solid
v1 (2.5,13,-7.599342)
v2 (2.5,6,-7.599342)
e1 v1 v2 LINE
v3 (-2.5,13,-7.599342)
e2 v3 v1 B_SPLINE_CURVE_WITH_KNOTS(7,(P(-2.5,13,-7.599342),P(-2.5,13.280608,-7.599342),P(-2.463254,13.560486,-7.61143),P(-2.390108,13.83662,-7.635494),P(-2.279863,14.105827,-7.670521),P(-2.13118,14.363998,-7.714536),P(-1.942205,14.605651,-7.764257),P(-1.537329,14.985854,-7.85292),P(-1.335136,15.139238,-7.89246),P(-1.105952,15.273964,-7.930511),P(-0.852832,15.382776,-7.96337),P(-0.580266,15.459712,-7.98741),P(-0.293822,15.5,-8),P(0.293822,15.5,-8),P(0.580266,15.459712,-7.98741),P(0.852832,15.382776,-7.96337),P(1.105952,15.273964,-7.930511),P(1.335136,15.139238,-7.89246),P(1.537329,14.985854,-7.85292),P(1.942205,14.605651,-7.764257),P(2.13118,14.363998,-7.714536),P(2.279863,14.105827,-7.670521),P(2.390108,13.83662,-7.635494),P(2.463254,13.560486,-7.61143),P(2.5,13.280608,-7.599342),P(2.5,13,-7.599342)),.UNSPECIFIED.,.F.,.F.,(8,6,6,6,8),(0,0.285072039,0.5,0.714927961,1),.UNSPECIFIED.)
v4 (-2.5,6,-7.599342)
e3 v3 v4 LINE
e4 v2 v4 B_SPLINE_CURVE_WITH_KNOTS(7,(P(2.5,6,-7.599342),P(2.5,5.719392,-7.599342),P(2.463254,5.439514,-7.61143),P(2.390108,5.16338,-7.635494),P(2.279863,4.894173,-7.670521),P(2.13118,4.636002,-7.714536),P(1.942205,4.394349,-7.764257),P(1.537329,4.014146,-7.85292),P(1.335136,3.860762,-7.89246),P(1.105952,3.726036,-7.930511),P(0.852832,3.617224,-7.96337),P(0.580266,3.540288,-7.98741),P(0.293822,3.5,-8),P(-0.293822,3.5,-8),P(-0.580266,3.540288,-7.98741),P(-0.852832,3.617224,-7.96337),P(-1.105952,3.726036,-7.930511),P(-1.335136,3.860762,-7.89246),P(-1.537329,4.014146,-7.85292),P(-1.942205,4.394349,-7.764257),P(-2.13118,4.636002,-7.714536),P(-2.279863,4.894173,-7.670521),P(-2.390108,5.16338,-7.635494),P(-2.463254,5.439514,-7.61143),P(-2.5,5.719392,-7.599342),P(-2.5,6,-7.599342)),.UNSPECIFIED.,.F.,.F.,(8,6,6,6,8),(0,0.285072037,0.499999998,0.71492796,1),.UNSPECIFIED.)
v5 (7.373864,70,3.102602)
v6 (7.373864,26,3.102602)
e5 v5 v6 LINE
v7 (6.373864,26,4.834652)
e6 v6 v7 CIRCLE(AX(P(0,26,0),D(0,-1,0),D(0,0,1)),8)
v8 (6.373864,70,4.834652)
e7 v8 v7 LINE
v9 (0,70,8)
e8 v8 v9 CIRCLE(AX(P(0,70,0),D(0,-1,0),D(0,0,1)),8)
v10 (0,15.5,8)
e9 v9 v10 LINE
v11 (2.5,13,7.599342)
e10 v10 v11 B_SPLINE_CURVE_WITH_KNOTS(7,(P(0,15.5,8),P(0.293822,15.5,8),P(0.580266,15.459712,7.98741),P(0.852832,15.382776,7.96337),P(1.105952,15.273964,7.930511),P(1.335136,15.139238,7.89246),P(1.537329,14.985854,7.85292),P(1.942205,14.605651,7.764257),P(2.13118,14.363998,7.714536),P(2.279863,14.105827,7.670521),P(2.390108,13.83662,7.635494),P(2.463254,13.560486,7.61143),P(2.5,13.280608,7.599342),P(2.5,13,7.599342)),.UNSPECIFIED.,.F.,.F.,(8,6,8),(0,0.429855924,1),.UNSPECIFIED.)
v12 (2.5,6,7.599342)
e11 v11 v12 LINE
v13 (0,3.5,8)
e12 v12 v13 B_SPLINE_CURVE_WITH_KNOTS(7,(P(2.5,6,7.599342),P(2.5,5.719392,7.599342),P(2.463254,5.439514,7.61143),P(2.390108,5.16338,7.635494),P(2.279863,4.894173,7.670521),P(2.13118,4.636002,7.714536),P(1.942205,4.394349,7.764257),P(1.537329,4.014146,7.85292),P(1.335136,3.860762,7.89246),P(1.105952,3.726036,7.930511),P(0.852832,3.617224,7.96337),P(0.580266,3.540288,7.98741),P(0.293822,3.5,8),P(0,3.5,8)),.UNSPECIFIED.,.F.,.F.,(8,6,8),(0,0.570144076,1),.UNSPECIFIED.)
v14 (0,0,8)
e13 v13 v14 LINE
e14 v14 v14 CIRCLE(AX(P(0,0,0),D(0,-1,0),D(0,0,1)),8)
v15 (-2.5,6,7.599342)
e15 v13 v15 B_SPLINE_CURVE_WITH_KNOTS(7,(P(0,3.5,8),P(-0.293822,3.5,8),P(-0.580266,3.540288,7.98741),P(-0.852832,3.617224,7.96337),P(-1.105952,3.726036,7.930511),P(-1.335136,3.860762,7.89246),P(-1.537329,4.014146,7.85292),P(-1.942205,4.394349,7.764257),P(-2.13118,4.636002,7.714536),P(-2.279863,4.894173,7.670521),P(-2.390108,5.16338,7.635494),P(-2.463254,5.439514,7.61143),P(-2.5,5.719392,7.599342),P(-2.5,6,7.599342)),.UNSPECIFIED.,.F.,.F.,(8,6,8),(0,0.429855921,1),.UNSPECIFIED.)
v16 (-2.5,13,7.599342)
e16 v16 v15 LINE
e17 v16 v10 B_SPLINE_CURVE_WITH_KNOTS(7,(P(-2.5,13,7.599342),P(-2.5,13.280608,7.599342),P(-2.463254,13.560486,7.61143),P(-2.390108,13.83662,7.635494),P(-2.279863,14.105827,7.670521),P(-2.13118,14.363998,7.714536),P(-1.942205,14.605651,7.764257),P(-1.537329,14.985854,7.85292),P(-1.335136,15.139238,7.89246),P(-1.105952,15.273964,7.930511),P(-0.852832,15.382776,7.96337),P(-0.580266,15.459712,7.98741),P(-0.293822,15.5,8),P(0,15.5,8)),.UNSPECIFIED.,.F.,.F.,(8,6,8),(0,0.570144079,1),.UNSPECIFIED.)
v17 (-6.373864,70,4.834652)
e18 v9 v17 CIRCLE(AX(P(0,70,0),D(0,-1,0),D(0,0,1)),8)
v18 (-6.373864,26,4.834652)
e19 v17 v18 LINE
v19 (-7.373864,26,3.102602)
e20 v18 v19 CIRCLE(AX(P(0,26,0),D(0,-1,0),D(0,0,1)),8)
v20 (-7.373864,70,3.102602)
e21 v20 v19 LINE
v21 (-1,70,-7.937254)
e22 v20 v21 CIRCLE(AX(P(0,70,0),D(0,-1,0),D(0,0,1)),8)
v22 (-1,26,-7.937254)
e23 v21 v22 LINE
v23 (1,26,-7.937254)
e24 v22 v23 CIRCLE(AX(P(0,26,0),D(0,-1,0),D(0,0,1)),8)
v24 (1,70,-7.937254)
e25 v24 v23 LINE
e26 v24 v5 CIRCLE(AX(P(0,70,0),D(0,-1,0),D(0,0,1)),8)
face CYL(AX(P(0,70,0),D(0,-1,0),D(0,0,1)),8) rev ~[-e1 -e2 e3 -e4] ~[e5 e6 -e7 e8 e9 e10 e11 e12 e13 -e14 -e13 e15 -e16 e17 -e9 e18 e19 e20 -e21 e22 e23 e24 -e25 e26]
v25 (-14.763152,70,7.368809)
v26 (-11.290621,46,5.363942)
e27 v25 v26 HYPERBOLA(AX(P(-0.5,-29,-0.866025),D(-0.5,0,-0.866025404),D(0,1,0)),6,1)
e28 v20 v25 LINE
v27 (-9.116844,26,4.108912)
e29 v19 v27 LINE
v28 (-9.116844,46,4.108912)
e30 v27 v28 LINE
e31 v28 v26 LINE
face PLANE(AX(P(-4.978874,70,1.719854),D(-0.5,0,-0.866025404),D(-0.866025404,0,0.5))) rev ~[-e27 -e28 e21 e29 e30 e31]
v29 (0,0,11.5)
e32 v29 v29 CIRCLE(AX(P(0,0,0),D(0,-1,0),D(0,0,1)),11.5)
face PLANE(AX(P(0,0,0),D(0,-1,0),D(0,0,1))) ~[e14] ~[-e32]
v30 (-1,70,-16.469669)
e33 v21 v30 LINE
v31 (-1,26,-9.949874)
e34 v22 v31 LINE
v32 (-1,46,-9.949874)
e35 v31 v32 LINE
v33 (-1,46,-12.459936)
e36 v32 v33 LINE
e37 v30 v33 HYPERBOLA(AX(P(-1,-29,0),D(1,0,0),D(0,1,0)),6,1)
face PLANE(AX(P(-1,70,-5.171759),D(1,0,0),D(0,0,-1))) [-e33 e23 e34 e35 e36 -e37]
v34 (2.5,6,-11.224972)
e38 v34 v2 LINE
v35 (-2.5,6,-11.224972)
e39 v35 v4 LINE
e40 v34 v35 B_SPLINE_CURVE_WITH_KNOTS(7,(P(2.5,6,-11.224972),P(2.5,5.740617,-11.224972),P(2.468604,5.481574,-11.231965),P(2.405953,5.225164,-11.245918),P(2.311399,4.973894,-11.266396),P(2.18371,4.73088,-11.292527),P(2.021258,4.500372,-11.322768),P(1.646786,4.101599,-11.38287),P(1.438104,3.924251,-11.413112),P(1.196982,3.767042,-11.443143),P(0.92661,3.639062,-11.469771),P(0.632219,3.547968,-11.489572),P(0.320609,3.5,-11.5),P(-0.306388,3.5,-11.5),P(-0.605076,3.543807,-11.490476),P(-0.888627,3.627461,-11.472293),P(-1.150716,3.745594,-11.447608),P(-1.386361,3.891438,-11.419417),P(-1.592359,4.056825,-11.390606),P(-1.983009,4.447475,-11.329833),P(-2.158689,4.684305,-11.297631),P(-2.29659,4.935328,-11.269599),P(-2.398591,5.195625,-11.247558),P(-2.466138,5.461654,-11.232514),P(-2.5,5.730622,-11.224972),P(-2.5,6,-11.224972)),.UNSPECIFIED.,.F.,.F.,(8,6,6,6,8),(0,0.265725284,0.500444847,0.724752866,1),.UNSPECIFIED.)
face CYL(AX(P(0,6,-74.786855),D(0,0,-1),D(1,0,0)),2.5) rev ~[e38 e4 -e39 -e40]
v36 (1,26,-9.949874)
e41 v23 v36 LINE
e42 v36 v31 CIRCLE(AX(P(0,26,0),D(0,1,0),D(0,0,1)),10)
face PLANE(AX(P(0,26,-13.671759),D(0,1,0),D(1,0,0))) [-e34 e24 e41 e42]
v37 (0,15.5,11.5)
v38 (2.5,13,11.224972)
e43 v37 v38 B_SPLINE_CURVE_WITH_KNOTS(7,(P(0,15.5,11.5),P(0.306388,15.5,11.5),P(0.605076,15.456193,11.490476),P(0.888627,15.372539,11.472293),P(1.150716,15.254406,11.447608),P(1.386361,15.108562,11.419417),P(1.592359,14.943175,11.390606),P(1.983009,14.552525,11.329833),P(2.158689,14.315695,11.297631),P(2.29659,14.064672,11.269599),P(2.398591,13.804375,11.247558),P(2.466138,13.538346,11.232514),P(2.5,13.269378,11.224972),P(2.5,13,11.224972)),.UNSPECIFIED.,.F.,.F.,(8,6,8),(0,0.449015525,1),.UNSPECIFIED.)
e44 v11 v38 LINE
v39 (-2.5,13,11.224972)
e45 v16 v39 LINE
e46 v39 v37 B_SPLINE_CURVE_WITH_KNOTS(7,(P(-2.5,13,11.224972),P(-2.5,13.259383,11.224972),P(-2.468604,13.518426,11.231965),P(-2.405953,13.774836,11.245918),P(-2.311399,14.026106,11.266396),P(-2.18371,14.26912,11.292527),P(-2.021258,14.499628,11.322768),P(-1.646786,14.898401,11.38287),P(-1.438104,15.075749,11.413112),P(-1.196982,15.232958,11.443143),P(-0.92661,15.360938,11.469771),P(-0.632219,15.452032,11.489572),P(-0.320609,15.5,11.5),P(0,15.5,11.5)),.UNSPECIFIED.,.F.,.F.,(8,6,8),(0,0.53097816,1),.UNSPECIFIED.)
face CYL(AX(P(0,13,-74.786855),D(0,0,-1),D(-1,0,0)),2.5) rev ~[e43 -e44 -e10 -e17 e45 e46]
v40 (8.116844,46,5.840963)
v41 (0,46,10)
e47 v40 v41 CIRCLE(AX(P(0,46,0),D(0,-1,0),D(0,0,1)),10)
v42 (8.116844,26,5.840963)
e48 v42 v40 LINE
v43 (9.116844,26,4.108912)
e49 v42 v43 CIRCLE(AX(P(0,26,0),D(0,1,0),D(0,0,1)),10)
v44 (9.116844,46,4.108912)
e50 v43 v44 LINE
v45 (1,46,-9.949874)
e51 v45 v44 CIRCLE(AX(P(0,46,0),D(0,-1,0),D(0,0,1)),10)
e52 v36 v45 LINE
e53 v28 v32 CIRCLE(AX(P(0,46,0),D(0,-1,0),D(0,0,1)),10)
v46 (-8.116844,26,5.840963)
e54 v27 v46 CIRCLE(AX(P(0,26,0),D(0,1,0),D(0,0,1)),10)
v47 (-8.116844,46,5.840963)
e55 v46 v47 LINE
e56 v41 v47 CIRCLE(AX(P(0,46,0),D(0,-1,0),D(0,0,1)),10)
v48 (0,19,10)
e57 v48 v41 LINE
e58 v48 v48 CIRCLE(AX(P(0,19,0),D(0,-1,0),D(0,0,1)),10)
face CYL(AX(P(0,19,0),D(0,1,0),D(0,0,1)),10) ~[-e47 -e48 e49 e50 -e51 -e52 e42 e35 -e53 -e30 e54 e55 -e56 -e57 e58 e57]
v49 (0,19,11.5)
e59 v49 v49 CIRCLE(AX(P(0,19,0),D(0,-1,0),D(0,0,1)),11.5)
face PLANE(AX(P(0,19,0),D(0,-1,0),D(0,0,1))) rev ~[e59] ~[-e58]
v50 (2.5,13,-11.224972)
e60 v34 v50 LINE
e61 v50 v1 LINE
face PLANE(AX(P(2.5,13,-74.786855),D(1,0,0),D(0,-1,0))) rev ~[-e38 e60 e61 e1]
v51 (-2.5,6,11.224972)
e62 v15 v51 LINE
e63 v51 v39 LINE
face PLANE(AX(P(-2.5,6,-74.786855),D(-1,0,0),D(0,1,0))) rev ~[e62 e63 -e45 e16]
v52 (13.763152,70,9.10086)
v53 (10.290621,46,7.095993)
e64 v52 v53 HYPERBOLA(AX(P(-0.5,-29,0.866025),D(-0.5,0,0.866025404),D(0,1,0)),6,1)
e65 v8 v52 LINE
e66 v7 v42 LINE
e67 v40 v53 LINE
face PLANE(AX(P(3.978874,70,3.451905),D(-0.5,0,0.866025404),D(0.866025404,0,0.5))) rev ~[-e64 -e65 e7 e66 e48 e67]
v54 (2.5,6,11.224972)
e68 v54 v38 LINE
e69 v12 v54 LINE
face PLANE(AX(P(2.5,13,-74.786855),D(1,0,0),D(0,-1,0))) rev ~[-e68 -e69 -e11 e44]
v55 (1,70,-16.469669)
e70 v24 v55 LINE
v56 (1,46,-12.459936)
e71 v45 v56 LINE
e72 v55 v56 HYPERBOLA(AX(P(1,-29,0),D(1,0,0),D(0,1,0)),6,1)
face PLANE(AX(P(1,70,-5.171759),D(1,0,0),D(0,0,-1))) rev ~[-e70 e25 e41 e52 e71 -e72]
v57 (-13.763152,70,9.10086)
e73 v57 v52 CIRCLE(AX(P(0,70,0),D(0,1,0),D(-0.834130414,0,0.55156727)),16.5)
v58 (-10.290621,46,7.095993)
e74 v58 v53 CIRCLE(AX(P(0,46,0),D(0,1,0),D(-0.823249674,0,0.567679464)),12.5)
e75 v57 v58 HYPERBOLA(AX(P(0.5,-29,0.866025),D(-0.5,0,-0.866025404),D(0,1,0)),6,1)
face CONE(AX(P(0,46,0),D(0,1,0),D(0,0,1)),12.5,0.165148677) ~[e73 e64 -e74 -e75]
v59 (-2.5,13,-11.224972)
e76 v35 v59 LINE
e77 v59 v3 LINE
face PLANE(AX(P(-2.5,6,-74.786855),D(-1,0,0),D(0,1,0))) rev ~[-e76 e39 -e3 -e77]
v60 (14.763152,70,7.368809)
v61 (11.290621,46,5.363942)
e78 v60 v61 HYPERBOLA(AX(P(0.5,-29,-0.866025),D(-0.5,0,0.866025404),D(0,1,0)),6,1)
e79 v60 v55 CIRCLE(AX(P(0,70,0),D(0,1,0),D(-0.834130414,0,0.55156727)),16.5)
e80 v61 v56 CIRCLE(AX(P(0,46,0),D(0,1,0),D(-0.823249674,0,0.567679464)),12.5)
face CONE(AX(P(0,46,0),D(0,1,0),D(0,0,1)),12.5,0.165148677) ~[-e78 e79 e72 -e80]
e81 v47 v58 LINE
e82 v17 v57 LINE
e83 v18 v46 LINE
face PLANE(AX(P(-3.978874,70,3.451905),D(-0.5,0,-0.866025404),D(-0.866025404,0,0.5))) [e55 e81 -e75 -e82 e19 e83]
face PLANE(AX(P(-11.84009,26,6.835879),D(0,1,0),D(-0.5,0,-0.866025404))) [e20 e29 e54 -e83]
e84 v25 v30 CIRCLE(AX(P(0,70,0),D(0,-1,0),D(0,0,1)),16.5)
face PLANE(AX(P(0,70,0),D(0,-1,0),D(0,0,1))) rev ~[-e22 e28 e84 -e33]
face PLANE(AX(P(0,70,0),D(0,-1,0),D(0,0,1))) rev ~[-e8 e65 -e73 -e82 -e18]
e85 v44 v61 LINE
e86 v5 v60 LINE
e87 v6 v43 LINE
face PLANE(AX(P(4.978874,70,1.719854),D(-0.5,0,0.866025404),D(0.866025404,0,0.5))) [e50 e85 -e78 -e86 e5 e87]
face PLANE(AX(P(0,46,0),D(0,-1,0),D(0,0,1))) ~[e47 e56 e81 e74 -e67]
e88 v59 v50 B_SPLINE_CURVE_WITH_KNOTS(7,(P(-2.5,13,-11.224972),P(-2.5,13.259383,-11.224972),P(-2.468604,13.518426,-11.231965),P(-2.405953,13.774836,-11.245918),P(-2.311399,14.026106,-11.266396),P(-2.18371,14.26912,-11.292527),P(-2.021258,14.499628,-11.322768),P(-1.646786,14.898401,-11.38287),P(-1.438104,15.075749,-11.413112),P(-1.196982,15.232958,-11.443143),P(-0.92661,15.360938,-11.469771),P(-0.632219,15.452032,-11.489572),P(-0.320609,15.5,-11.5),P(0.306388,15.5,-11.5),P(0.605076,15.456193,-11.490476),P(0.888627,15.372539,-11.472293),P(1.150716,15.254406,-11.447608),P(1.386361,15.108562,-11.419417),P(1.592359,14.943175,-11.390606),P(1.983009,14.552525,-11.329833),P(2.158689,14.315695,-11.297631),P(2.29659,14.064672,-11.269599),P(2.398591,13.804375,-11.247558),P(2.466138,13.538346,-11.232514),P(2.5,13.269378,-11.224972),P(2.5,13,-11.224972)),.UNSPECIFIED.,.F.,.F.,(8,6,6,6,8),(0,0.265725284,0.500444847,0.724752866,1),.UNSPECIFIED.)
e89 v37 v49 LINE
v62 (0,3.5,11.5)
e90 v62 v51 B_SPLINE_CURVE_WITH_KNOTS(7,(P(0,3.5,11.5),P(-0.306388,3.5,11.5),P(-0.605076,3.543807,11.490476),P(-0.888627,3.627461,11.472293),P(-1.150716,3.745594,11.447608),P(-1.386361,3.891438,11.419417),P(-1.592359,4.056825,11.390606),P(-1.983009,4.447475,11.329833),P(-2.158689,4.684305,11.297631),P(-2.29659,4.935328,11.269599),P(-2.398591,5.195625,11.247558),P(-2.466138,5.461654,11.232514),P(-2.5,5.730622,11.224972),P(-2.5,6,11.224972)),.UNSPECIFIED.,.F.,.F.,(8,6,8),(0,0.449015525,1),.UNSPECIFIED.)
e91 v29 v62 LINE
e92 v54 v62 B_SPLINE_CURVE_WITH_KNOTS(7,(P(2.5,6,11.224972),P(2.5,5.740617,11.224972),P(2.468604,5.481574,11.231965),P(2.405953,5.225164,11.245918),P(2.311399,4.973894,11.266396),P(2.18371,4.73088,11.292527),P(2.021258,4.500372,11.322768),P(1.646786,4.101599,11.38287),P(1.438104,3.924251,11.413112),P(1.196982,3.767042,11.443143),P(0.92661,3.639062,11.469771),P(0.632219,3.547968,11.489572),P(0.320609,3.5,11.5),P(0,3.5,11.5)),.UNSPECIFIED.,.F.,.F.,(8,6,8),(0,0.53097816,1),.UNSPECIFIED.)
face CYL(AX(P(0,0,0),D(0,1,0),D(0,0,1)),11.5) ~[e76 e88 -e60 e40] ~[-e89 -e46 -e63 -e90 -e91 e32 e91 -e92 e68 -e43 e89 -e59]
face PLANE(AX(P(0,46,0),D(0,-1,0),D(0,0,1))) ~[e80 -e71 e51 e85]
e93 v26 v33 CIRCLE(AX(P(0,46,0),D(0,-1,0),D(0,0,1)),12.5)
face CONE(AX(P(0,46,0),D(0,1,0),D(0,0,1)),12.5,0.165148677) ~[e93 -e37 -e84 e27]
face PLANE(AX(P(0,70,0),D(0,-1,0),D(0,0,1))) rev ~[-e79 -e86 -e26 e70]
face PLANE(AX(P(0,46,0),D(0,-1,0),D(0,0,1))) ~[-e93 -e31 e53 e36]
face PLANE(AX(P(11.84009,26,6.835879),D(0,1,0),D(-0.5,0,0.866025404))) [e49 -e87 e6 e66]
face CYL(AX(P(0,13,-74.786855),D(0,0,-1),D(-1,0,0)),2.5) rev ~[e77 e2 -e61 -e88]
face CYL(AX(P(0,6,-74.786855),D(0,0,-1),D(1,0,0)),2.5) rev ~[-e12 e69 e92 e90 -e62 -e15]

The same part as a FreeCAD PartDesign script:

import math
import FreeCAD as App
import Part
import Sketcher

V = App.Vector

doc = App.newDocument("Part")
body = doc.addObject("PartDesign::Body", "Body")

# Sketch on XY plane
sketch1 = body.newObject("Sketcher::SketchObject", "Sketch")
sketch1.AttachmentSupport = (doc.getObject("XY_Plane"), [""])
sketch1.MapMode = "FlatFace"
sketch1.addGeometry(Part.LineSegment(V(8, 0, 0), V(11.5, 0, 0)), False)
sketch1.addGeometry(Part.LineSegment(V(11.5, 0, 0), V(11.5, 19, 0)), False)
sketch1.addGeometry(Part.LineSegment(V(11.5, 19, 0), V(10, 19, 0)), False)
sketch1.addGeometry(Part.LineSegment(V(10, 19, 0), V(10, 46, 0)), False)
sketch1.addGeometry(Part.LineSegment(V(10, 46, 0), V(12.5, 46, 0)), False)
sketch1.addGeometry(Part.LineSegment(V(12.5, 46, 0), V(16.5, 70, 0)), False)
sketch1.addGeometry(Part.LineSegment(V(16.5, 70, 0), V(8, 70, 0)), False)
sketch1.addGeometry(Part.LineSegment(V(8, 70, 0), V(8, 0, 0)), False)
sketch1.addConstraint(Sketcher.Constraint("Coincident", 0, 2, 1, 1))
sketch1.addConstraint(Sketcher.Constraint("Coincident", 1, 2, 2, 1))
sketch1.addConstraint(Sketcher.Constraint("Coincident", 2, 2, 3, 1))
sketch1.addConstraint(Sketcher.Constraint("Coincident", 3, 2, 4, 1))
sketch1.addConstraint(Sketcher.Constraint("Coincident", 4, 2, 5, 1))
sketch1.addConstraint(Sketcher.Constraint("Coincident", 5, 2, 6, 1))
sketch1.addConstraint(Sketcher.Constraint("Coincident", 6, 2, 7, 1))
sketch1.addConstraint(Sketcher.Constraint("Coincident", 7, 2, 0, 1))
sketch1.addConstraint(Sketcher.Constraint("Horizontal", 0))
sketch1.addConstraint(Sketcher.Constraint("Vertical", 1))
sketch1.addConstraint(Sketcher.Constraint("Horizontal", 2))
sketch1.addConstraint(Sketcher.Constraint("Vertical", 3))
sketch1.addConstraint(Sketcher.Constraint("Horizontal", 4))
sketch1.addConstraint(Sketcher.Constraint("Horizontal", 6))
sketch1.addConstraint(Sketcher.Constraint("Vertical", 7))
sketch1.addConstraint(Sketcher.Constraint("PointOnObject", 0, 2, -1))
sketch1.addConstraint(Sketcher.Constraint("DistanceY", 1, 1, 1, 2, 19.0))
sketch1.addConstraint(Sketcher.Constraint("DistanceY", 3, 1, 3, 2, 27.0))
sketch1.addConstraint(Sketcher.Constraint("DistanceY", 7, 2, 7, 1, 70.0))
sketch1.addConstraint(Sketcher.Constraint("DistanceX", 0, 1, 0, 2, 3.5))
sketch1.addConstraint(Sketcher.Constraint("DistanceX", 2, 2, 2, 1, 1.5))
sketch1.addConstraint(Sketcher.Constraint("DistanceX", 4, 1, 4, 2, 2.5))
sketch1.addConstraint(Sketcher.Constraint("DistanceX", 6, 2, 6, 1, 8.5))
sketch1.addConstraint(Sketcher.Constraint("DistanceX", -1, 1, 2, 2, 10.0))
revolution = body.newObject("PartDesign::Revolution", "Revolution")
revolution.Profile = sketch1
revolution.ReferenceAxis = (sketch1, ["V_Axis"])
revolution.Angle = 360

# Sketch on XY plane
sketch2 = body.newObject("Sketcher::SketchObject", "Sketch001")
sketch2.AttachmentSupport = (doc.getObject("XY_Plane"), [""])
sketch2.MapMode = "FlatFace"
sketch2.addGeometry(Part.LineSegment(V(2.5, 6, 0), V(2.5, 13, 0)), False)
sketch2.addGeometry(Part.ArcOfCircle(Part.Circle(V(0, 13, 0), V(0, 0, 1), 2.5), math.radians(0), math.radians(180)), False)
sketch2.addGeometry(Part.LineSegment(V(-2.5, 13, 0), V(-2.5, 6, 0)), False)
sketch2.addGeometry(Part.ArcOfCircle(Part.Circle(V(0, 6, 0), V(0, 0, 1), 2.5), math.radians(180), math.radians(360)), False)
sketch2.addConstraint(Sketcher.Constraint("Tangent", 0, 2, 1, 1))
sketch2.addConstraint(Sketcher.Constraint("Tangent", 1, 2, 2, 1))
sketch2.addConstraint(Sketcher.Constraint("Tangent", 2, 2, 3, 1))
sketch2.addConstraint(Sketcher.Constraint("Tangent", 3, 2, 0, 1))
sketch2.addConstraint(Sketcher.Constraint("Vertical", 0))
sketch2.addConstraint(Sketcher.Constraint("Vertical", 2))
sketch2.addConstraint(Sketcher.Constraint("PointOnObject", 1, 3, -2))
sketch2.addConstraint(Sketcher.Constraint("Radius", 1, 2.5))
sketch2.addConstraint(Sketcher.Constraint("DistanceY", 0, 1, 0, 2, 7.0))
sketch2.addConstraint(Sketcher.Constraint("DistanceY", -1, 1, 1, 3, 13.0))
pocket1 = body.newObject("PartDesign::Pocket", "Pocket")
pocket1.Profile = sketch2
pocket1.Type = "ThroughAll"
pocket1.Midplane = True

# Sketch on XZ plane
sketch3 = body.newObject("Sketcher::SketchObject", "Sketch002")
sketch3.AttachmentSupport = (doc.getObject("XZ_Plane"), [""])
sketch3.MapMode = "FlatFace"
sketch3.AttachmentOffset = App.Placement(V(0, 0, -70), App.Rotation())
sketch3.addGeometry(Part.LineSegment(V(-1, -22.2, 0), V(-1, -5.2, 0)), False)
sketch3.addGeometry(Part.LineSegment(V(-1, -5.2, 0), V(1, -5.2, 0)), False)
sketch3.addGeometry(Part.LineSegment(V(1, -5.2, 0), V(1, -22.2, 0)), False)
sketch3.addGeometry(Part.LineSegment(V(1, -22.2, 0), V(-1, -22.2, 0)), False)
sketch3.addConstraint(Sketcher.Constraint("Coincident", 0, 2, 1, 1))
sketch3.addConstraint(Sketcher.Constraint("Coincident", 1, 2, 2, 1))
sketch3.addConstraint(Sketcher.Constraint("Coincident", 2, 2, 3, 1))
sketch3.addConstraint(Sketcher.Constraint("Coincident", 3, 2, 0, 1))
sketch3.addConstraint(Sketcher.Constraint("Vertical", 0))
sketch3.addConstraint(Sketcher.Constraint("Horizontal", 1))
sketch3.addConstraint(Sketcher.Constraint("Vertical", 2))
sketch3.addConstraint(Sketcher.Constraint("Horizontal", 3))
sketch3.addConstraint(Sketcher.Constraint("DistanceX", 1, 1, 1, 2, 2.0))
sketch3.addConstraint(Sketcher.Constraint("DistanceY", 0, 1, 0, 2, 17.0))
sketch3.addConstraint(Sketcher.Constraint("DistanceX", 0, 2, -1, 1, 1.0))
sketch3.addConstraint(Sketcher.Constraint("DistanceY", 0, 2, -1, 1, 5.171759))
pocket2 = body.newObject("PartDesign::Pocket", "Pocket001")
pocket2.Profile = sketch3
pocket2.Length = 44
pocket2.Reversed = True
doc.recompute()

polarpattern = body.newObject("PartDesign::PolarPattern", "PolarPattern")
polarpattern.Originals = [pocket2]
polarpattern.Axis = (doc.getObject("Y_Axis"), [""])
polarpattern.Angle = 360
polarpattern.Occurrences = 3
body.Tip = polarpattern

doc.recompute()
